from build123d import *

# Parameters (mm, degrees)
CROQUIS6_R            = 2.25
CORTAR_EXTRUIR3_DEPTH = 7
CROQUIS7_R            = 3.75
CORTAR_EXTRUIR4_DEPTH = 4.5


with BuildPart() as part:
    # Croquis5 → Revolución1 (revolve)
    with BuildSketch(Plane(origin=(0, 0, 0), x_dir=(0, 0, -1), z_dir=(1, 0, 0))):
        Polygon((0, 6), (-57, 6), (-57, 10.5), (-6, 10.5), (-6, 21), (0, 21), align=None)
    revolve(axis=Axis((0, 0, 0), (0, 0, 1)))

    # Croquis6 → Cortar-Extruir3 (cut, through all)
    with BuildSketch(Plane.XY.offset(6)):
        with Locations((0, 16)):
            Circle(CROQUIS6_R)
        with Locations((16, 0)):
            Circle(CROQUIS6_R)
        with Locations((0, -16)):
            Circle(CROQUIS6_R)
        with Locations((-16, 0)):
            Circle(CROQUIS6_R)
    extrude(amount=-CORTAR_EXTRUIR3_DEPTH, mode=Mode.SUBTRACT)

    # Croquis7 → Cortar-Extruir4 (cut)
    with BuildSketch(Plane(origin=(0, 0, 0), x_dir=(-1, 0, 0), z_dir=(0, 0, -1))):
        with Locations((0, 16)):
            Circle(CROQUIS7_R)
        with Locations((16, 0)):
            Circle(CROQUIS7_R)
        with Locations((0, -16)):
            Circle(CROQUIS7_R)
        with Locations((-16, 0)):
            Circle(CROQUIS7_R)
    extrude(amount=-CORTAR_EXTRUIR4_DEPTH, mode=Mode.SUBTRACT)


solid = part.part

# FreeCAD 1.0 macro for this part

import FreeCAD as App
import Part
import Sketcher
Q = App.Units.Quantity

doc = App.newDocument("Part")
body = doc.addObject("PartDesign::Body", "Body")

# Sketch on YZ plane
sketch1 = body.newObject("Sketcher::SketchObject", "Sketch")
sketch1.AttachmentSupport = (doc.getObject("YZ_Plane"), [""])
sketch1.MapMode = "FlatFace"
sketch1.addGeometry([
    Part.LineSegment(App.Vector(6, 57, 0), App.Vector(6, 0, 0)),  # 0
    Part.LineSegment(App.Vector(6, 0, 0), App.Vector(21, 0, 0)),  # 1
    Part.LineSegment(App.Vector(21, 0, 0), App.Vector(21, 6, 0)),  # 2
    Part.LineSegment(App.Vector(21, 6, 0), App.Vector(10.5, 6, 0)),  # 3
    Part.LineSegment(App.Vector(10.5, 6, 0), App.Vector(10.5, 57, 0)),  # 4
    Part.LineSegment(App.Vector(10.5, 57, 0), App.Vector(6, 57, 0)),  # 5
], False)
sketch1.addConstraint([
    Sketcher.Constraint("Coincident", 0, 2, 1, 1),
    Sketcher.Constraint("Coincident", 1, 2, 2, 1),
    Sketcher.Constraint("Coincident", 2, 2, 3, 1),
    Sketcher.Constraint("Coincident", 3, 2, 4, 1),
    Sketcher.Constraint("Coincident", 4, 2, 5, 1),
    Sketcher.Constraint("Coincident", 5, 2, 0, 1),
    Sketcher.Constraint("Vertical", 0),
    Sketcher.Constraint("Horizontal", 1),
    Sketcher.Constraint("Vertical", 2),
    Sketcher.Constraint("Horizontal", 3),
    Sketcher.Constraint("Vertical", 4),
    Sketcher.Constraint("Horizontal", 5),
    Sketcher.Constraint("PointOnObject", 0, 2, -1),
    Sketcher.Constraint("DistanceX", 1, 1, 1, 2, Q("15 mm")),
    Sketcher.Constraint("DistanceY", 0, 2, 0, 1, Q("57 mm")),
    Sketcher.Constraint("DistanceY", 2, 1, 2, 2, Q("6 mm")),
    Sketcher.Constraint("DistanceX", 3, 2, 3, 1, Q("10.5 mm")),
    Sketcher.Constraint("DistanceX", -1, 1, 0, 2, Q("6 mm")),
])
revolution = body.newObject("PartDesign::Revolution", "Revolution")
revolution.Profile = sketch1
revolution.ReferenceAxis = (sketch1, ["V_Axis"])
revolution.Angle = 360

# Sketch on XY plane
sketch2 = body.newObject("Sketcher::SketchObject", "Sketch001")
sketch2.AttachmentSupport = (doc.getObject("XY_Plane"), [""])
sketch2.MapMode = "FlatFace"
sketch2.AttachmentOffset = App.Placement(App.Vector(0, 0, 6), App.Rotation())
sketch2.addGeometry([
    Part.Circle(App.Vector(0, 16, 0), App.Vector(0, 0, 1), 2.25),
    Part.Circle(App.Vector(16, 0, 0), App.Vector(0, 0, 1), 2.25),
    Part.Circle(App.Vector(0, -16, 0), App.Vector(0, 0, 1), 2.25),
    Part.Circle(App.Vector(-16, 0, 0), App.Vector(0, 0, 1), 2.25),
], False)
sketch2.addConstraint([
    Sketcher.Constraint("Equal", 0, 1),
    Sketcher.Constraint("Equal", 1, 2),
    Sketcher.Constraint("Equal", 2, 3),
    Sketcher.Constraint("Symmetric", 0, 3, 2, 3, -1, 1),
    Sketcher.Constraint("Symmetric", 1, 3, 3, 3, -1, 1),
    Sketcher.Constraint("PointOnObject", 0, 3, -2),
    Sketcher.Constraint("PointOnObject", 1, 3, -1),
    Sketcher.Constraint("Diameter", 0, Q("4.5 mm")),
    Sketcher.Constraint("DistanceY", -1, 1, 0, 3, Q("16 mm")),
    Sketcher.Constraint("DistanceX", -1, 1, 1, 3, Q("16 mm")),
])
pocket1 = body.newObject("PartDesign::Pocket", "Pocket")
pocket1.Profile = sketch2
pocket1.Type = "ThroughAll"

# Sketch on XY plane
sketch3 = body.newObject("Sketcher::SketchObject", "Sketch002")
sketch3.AttachmentSupport = (doc.getObject("XY_Plane"), [""])
sketch3.MapMode = "FlatFace"
sketch3.addGeometry([
    Part.Circle(App.Vector(0, 16, 0), App.Vector(0, 0, 1), 3.75),
    Part.Circle(App.Vector(-16, 0, 0), App.Vector(0, 0, 1), 3.75),
    Part.Circle(App.Vector(0, -16, 0), App.Vector(0, 0, 1), 3.75),
    Part.Circle(App.Vector(16, 0, 0), App.Vector(0, 0, 1), 3.75),
], False)
sketch3.addConstraint([
    Sketcher.Constraint("Equal", 0, 1),
    Sketcher.Constraint("Equal", 1, 2),
    Sketcher.Constraint("Equal", 2, 3),
    Sketcher.Constraint("Symmetric", 0, 3, 2, 3, -1, 1),
    Sketcher.Constraint("Symmetric", 1, 3, 3, 3, -1, 1),
    Sketcher.Constraint("PointOnObject", 0, 3, -2),
    Sketcher.Constraint("PointOnObject", 1, 3, -1),
    Sketcher.Constraint("Diameter", 0, Q("7.5 mm")),
    Sketcher.Constraint("DistanceY", -1, 1, 0, 3, Q("16 mm")),
    Sketcher.Constraint("DistanceX", 1, 3, -1, 1, Q("16 mm")),
])
pocket2 = body.newObject("PartDesign::Pocket", "Pocket001")
pocket2.Profile = sketch3
pocket2.Length = 4.5
pocket2.Reversed = True

doc.recompute()
